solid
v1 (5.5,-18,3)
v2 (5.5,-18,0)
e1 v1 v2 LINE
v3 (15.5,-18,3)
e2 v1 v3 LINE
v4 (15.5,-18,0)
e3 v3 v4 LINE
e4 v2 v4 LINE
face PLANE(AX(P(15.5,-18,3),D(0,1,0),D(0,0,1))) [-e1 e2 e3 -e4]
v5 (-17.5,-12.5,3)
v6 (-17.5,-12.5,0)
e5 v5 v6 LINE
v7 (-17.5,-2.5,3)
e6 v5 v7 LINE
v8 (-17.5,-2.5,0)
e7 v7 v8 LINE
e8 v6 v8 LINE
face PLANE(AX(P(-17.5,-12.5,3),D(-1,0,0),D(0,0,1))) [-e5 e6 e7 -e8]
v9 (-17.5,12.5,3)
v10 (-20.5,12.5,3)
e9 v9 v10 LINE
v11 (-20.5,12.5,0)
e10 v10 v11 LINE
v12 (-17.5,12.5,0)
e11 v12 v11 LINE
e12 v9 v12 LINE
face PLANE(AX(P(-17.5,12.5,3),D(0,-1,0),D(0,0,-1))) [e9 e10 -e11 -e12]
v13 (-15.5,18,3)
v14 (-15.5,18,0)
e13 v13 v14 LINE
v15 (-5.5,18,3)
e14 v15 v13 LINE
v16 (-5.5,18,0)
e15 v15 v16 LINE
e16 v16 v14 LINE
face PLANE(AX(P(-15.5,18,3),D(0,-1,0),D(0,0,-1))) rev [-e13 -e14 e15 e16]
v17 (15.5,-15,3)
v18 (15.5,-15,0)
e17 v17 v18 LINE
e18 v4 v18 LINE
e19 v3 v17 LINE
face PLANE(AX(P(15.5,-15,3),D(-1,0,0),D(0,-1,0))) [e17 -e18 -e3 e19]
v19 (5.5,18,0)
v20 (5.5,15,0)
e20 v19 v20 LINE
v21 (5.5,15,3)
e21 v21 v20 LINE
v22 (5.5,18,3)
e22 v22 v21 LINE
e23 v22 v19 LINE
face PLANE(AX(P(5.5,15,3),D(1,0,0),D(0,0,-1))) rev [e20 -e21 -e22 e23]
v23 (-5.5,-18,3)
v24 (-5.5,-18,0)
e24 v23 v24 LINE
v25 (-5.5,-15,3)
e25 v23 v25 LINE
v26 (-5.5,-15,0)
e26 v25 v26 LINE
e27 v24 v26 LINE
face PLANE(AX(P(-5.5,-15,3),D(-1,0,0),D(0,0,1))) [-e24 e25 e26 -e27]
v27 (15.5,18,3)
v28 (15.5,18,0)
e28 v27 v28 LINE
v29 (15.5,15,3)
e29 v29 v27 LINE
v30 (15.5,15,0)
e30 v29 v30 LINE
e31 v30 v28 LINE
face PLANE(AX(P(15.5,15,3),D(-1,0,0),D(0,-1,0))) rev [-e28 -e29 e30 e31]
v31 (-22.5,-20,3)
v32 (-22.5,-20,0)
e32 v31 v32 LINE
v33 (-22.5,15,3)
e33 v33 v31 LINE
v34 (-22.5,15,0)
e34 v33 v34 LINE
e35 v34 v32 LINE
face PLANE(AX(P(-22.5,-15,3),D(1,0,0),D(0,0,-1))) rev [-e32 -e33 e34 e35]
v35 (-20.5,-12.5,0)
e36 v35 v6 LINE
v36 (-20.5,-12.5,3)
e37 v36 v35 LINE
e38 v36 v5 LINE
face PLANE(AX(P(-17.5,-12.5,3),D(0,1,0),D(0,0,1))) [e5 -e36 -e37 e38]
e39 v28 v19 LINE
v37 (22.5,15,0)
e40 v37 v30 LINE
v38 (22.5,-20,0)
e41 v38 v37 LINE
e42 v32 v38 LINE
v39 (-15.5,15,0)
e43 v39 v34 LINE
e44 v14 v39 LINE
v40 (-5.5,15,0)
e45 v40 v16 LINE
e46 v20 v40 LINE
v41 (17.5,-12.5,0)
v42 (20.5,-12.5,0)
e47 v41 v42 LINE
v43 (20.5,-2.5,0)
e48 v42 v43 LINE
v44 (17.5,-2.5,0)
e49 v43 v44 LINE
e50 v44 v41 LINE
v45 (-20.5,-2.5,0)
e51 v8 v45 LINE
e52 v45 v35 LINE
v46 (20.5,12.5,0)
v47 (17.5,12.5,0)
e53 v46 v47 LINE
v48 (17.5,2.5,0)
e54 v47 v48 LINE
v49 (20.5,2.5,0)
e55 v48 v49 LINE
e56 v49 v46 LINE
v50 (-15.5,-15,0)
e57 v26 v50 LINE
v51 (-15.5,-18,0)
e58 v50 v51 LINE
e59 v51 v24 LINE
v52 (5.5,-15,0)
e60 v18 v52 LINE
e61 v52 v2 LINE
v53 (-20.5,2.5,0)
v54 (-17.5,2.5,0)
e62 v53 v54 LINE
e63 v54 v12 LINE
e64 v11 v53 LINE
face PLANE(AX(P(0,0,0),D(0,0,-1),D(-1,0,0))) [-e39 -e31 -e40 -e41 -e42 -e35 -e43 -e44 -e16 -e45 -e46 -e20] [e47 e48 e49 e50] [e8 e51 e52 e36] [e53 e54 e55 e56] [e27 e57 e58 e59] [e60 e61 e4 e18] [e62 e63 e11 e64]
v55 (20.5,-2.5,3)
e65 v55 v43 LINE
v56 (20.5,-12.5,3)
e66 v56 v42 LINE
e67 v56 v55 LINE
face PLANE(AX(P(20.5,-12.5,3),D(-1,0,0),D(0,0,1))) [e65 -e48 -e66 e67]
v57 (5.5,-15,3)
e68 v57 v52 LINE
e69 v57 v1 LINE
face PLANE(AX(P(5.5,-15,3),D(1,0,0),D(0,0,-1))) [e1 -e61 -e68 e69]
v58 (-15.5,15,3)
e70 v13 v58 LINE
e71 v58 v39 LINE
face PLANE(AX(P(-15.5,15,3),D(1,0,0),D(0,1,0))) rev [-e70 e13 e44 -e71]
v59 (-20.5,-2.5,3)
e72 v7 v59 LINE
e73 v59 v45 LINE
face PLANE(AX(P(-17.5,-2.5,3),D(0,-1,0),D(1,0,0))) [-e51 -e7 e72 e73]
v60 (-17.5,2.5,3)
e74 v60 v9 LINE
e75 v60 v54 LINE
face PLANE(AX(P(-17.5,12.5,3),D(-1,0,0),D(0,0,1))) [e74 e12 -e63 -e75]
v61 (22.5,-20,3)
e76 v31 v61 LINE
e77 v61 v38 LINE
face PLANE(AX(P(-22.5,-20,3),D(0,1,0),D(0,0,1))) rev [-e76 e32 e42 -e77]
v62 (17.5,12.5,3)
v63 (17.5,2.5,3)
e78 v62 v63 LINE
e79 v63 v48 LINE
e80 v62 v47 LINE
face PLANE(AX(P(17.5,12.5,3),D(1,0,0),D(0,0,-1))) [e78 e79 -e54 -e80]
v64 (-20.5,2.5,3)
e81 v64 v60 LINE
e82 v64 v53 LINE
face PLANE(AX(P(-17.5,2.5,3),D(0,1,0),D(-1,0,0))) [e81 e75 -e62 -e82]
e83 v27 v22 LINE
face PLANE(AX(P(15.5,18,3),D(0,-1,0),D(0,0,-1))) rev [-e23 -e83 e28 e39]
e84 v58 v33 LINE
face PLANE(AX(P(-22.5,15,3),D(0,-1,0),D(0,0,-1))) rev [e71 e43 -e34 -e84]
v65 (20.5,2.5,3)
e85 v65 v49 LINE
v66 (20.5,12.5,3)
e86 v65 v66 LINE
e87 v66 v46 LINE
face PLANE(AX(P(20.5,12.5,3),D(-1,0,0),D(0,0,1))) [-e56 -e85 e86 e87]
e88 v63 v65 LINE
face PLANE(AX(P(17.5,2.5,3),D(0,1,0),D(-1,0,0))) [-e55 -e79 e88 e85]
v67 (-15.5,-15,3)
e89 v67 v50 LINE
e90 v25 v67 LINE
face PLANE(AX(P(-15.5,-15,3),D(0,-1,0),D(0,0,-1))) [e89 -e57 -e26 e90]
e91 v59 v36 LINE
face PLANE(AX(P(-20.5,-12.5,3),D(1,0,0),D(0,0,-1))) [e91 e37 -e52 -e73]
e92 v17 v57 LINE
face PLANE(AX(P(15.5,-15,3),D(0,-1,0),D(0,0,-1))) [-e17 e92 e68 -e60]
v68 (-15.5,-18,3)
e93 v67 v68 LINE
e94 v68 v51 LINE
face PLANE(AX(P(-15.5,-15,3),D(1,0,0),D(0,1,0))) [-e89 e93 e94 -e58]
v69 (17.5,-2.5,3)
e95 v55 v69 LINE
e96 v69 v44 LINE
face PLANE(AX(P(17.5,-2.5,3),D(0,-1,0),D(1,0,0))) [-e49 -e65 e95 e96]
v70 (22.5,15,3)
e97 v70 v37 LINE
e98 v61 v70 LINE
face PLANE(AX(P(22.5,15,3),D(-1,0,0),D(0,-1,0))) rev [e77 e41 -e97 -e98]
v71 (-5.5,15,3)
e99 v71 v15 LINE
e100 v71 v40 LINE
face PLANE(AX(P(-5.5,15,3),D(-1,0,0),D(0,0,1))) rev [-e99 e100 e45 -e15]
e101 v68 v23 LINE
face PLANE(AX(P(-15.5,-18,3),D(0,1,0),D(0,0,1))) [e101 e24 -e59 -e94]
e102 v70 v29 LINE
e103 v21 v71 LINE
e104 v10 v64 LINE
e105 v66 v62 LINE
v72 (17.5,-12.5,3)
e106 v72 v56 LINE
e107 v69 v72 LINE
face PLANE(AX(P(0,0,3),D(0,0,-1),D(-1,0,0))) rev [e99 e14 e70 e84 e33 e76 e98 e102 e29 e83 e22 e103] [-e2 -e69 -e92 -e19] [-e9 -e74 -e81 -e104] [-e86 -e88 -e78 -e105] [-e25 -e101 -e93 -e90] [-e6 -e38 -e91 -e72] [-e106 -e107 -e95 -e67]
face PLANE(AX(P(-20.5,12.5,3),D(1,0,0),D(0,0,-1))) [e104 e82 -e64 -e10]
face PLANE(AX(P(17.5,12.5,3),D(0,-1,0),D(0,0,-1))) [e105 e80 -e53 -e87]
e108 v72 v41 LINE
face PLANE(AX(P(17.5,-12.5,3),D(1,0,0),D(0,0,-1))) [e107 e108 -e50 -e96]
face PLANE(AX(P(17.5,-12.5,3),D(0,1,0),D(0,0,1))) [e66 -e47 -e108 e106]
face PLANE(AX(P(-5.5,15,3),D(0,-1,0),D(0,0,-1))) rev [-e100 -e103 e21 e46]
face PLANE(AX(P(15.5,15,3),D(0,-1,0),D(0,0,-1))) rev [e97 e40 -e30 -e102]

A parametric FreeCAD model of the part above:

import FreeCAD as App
import Part
import Sketcher

V = App.Vector

doc = App.newDocument("Part")
body = doc.addObject("PartDesign::Body", "Body")

# Sketch on XY plane
sketch1 = body.newObject("Sketcher::SketchObject", "Sketch")
sketch1.AttachmentSupport = (doc.getObject("XY_Plane"), [""])
sketch1.MapMode = "FlatFace"
sketch1.addGeometry([
    Part.LineSegment(V(-15.5, 15, 0), V(-22.5, 15, 0)),  # 0
    Part.LineSegment(V(-22.5, 15, 0), V(-22.5, -20, 0)),  # 1
    Part.LineSegment(V(-22.5, -20, 0), V(22.5, -20, 0)),  # 2
    Part.LineSegment(V(22.5, -20, 0), V(22.5, 15, 0)),  # 3
    Part.LineSegment(V(22.5, 15, 0), V(15.5, 15, 0)),  # 4
    Part.LineSegment(V(15.5, 15, 0), V(15.5, 18, 0)),  # 5
    Part.LineSegment(V(15.5, 18, 0), V(5.5, 18, 0)),  # 6
    Part.LineSegment(V(5.5, 18, 0), V(5.5, 15, 0)),  # 7
    Part.LineSegment(V(5.5, 15, 0), V(-5.5, 15, 0)),  # 8
    Part.LineSegment(V(-5.5, 15, 0), V(-5.5, 18, 0)),  # 9
    Part.LineSegment(V(-5.5, 18, 0), V(-15.5, 18, 0)),  # 10
    Part.LineSegment(V(-15.5, 18, 0), V(-15.5, 15, 0)),  # 11
    Part.LineSegment(V(5.5, -18, 0), V(5.5, -15, 0)),  # 12
    Part.LineSegment(V(5.5, -15, 0), V(15.5, -15, 0)),  # 13
    Part.LineSegment(V(15.5, -15, 0), V(15.5, -18, 0)),  # 14
    Part.LineSegment(V(15.5, -18, 0), V(5.5, -18, 0)),  # 15
    Part.LineSegment(V(17.5, -12.5, 0), V(17.5, -2.5, 0)),  # 16
    Part.LineSegment(V(17.5, -2.5, 0), V(20.5, -2.5, 0)),  # 17
    Part.LineSegment(V(20.5, -2.5, 0), V(20.5, -12.5, 0)),  # 18
    Part.LineSegment(V(20.5, -12.5, 0), V(17.5, -12.5, 0)),  # 19
    Part.LineSegment(V(-15.5, -18, 0), V(-15.5, -15, 0)),  # 20
    Part.LineSegment(V(-15.5, -15, 0), V(-5.5, -15, 0)),  # 21
    Part.LineSegment(V(-5.5, -15, 0), V(-5.5, -18, 0)),  # 22
    Part.LineSegment(V(-5.5, -18, 0), V(-15.5, -18, 0)),  # 23
    Part.LineSegment(V(-20.5, -12.5, 0), V(-20.5, -2.5, 0)),  # 24
    Part.LineSegment(V(-20.5, -2.5, 0), V(-17.5, -2.5, 0)),  # 25
    Part.LineSegment(V(-17.5, -2.5, 0), V(-17.5, -12.5, 0)),  # 26
    Part.LineSegment(V(-17.5, -12.5, 0), V(-20.5, -12.5, 0)),  # 27
    Part.LineSegment(V(17.5, 2.5, 0), V(17.5, 12.5, 0)),  # 28
    Part.LineSegment(V(17.5, 12.5, 0), V(20.5, 12.5, 0)),  # 29
    Part.LineSegment(V(20.5, 12.5, 0), V(20.5, 2.5, 0)),  # 30
    Part.LineSegment(V(20.5, 2.5, 0), V(17.5, 2.5, 0)),  # 31
    Part.LineSegment(V(-20.5, 2.5, 0), V(-20.5, 12.5, 0)),  # 32
    Part.LineSegment(V(-20.5, 12.5, 0), V(-17.5, 12.5, 0)),  # 33
    Part.LineSegment(V(-17.5, 12.5, 0), V(-17.5, 2.5, 0)),  # 34
    Part.LineSegment(V(-17.5, 2.5, 0), V(-20.5, 2.5, 0)),  # 35
], False)
sketch1.addConstraint([
    Sketcher.Constraint("Coincident", 0, 2, 1, 1),
    Sketcher.Constraint("Coincident", 1, 2, 2, 1),
    Sketcher.Constraint("Coincident", 2, 2, 3, 1),
    Sketcher.Constraint("Coincident", 3, 2, 4, 1),
    Sketcher.Constraint("Coincident", 4, 2, 5, 1),
    Sketcher.Constraint("Coincident", 5, 2, 6, 1),
    Sketcher.Constraint("Coincident", 6, 2, 7, 1),
    Sketcher.Constraint("Coincident", 7, 2, 8, 1),
    Sketcher.Constraint("Coincident", 8, 2, 9, 1),
    Sketcher.Constraint("Coincident", 9, 2, 10, 1),
    Sketcher.Constraint("Coincident", 10, 2, 11, 1),
    Sketcher.Constraint("Coincident", 11, 2, 0, 1),
    Sketcher.Constraint("Coincident", 12, 2, 13, 1),
    Sketcher.Constraint("Coincident", 13, 2, 14, 1),
    Sketcher.Constraint("Coincident", 14, 2, 15, 1),
    Sketcher.Constraint("Coincident", 15, 2, 12, 1),
    Sketcher.Constraint("Coincident", 16, 2, 17, 1),
    Sketcher.Constraint("Coincident", 17, 2, 18, 1),
    Sketcher.Constraint("Coincident", 18, 2, 19, 1),
    Sketcher.Constraint("Coincident", 19, 2, 16, 1),
    Sketcher.Constraint("Coincident", 20, 2, 21, 1),
    Sketcher.Constraint("Coincident", 21, 2, 22, 1),
    Sketcher.Constraint("Coincident", 22, 2, 23, 1),
    Sketcher.Constraint("Coincident", 23, 2, 20, 1),
    Sketcher.Constraint("Coincident", 24, 2, 25, 1),
    Sketcher.Constraint("Coincident", 25, 2, 26, 1),
    Sketcher.Constraint("Coincident", 26, 2, 27, 1),
    Sketcher.Constraint("Coincident", 27, 2, 24, 1),
    Sketcher.Constraint("Coincident", 28, 2, 29, 1),
    Sketcher.Constraint("Coincident", 29, 2, 30, 1),
    Sketcher.Constraint("Coincident", 30, 2, 31, 1),
    Sketcher.Constraint("Coincident", 31, 2, 28, 1),
    Sketcher.Constraint("Coincident", 32, 2, 33, 1),
    Sketcher.Constraint("Coincident", 33, 2, 34, 1),
    Sketcher.Constraint("Coincident", 34, 2, 35, 1),
    Sketcher.Constraint("Coincident", 35, 2, 32, 1),
    Sketcher.Constraint("Horizontal", 0),
    Sketcher.Constraint("Vertical", 1),
    Sketcher.Constraint("Horizontal", 2),
    Sketcher.Constraint("Vertical", 3),
    Sketcher.Constraint("Horizontal", 4),
    Sketcher.Constraint("Vertical", 5),
    Sketcher.Constraint("Horizontal", 6),
    Sketcher.Constraint("Vertical", 7),
    Sketcher.Constraint("Horizontal", 8),
    Sketcher.Constraint("Vertical", 9),
    Sketcher.Constraint("Horizontal", 10),
    Sketcher.Constraint("Vertical", 11),
    Sketcher.Constraint("Vertical", 12),
    Sketcher.Constraint("Horizontal", 13),
    Sketcher.Constraint("Vertical", 14),
    Sketcher.Constraint("Horizontal", 15),
    Sketcher.Constraint("Vertical", 16),
    Sketcher.Constraint("Horizontal", 17),
    Sketcher.Constraint("Vertical", 18),
    Sketcher.Constraint("Horizontal", 19),
    Sketcher.Constraint("Vertical", 20),
    Sketcher.Constraint("Horizontal", 21),
    Sketcher.Constraint("Vertical", 22),
    Sketcher.Constraint("Horizontal", 23),
    Sketcher.Constraint("Vertical", 24),
    Sketcher.Constraint("Horizontal", 25),
    Sketcher.Constraint("Vertical", 26),
    Sketcher.Constraint("Horizontal", 27),
    Sketcher.Constraint("Vertical", 28),
    Sketcher.Constraint("Horizontal", 29),
    Sketcher.Constraint("Vertical", 30),
    Sketcher.Constraint("Horizontal", 31),
    Sketcher.Constraint("Vertical", 32),
    Sketcher.Constraint("Horizontal", 33),
    Sketcher.Constraint("Vertical", 34),
    Sketcher.Constraint("Horizontal", 35),
    Sketcher.Constraint("Symmetric", 8, 2, 12, 2, -1, 1),
    Sketcher.Constraint("Symmetric", 11, 2, 13, 2, -1, 1),
    Sketcher.Constraint("Symmetric", 4, 2, 20, 2, -1, 1),
    Sketcher.Constraint("Symmetric", 7, 2, 21, 2, -1, 1),
    Sketcher.Constraint("Symmetric", 26, 2, 28, 2, -1, 1),
    Sketcher.Constraint("Symmetric", 24, 2, 30, 2, -1, 1),
    Sketcher.Constraint("Symmetric", 18, 2, 32, 2, -1, 1),
    Sketcher.Constraint("Symmetric", 16, 2, 34, 2, -1, 1),
    Sketcher.Constraint("Symmetric", 6, 2, 9, 2, -2),
    Sketcher.Constraint("Symmetric", 14, 2, 23, 2, -2),
    Sketcher.Constraint("Symmetric", 17, 2, 24, 2, -2),
    Sketcher.Constraint("Symmetric", 19, 2, 26, 2, -2),
    Sketcher.Constraint("Equal", 0, 4),
    Sketcher.Constraint("Equal", 35, 5),
    Sketcher.Constraint("Equal", 11, 12),
    Sketcher.Constraint("Equal", 23, 16),
    Sketcher.Constraint("DistanceX", 0, 2, 0, 1, 7.0),
    Sketcher.Constraint("DistanceX", 2, 1, 2, 2, 45.0),
    Sketcher.Constraint("DistanceX", 6, 2, 6, 1, 10.0),
    Sketcher.Constraint("DistanceX", 17, 1, 17, 2, 3.0),
    Sketcher.Constraint("DistanceY", 1, 2, 1, 1, 35.0),
    Sketcher.Constraint("DistanceY", -1, 1, 0, 2, 15.0),
    Sketcher.Constraint("DistanceX", 13, 2, 16, 2, 2.0),
    Sketcher.Constraint("DistanceY", 17, 2, 29, 2, 15.0),
])
pad1 = body.newObject("PartDesign::Pad", "Pad")
pad1.Profile = sketch1
pad1.Length = 3

doc.recompute()
